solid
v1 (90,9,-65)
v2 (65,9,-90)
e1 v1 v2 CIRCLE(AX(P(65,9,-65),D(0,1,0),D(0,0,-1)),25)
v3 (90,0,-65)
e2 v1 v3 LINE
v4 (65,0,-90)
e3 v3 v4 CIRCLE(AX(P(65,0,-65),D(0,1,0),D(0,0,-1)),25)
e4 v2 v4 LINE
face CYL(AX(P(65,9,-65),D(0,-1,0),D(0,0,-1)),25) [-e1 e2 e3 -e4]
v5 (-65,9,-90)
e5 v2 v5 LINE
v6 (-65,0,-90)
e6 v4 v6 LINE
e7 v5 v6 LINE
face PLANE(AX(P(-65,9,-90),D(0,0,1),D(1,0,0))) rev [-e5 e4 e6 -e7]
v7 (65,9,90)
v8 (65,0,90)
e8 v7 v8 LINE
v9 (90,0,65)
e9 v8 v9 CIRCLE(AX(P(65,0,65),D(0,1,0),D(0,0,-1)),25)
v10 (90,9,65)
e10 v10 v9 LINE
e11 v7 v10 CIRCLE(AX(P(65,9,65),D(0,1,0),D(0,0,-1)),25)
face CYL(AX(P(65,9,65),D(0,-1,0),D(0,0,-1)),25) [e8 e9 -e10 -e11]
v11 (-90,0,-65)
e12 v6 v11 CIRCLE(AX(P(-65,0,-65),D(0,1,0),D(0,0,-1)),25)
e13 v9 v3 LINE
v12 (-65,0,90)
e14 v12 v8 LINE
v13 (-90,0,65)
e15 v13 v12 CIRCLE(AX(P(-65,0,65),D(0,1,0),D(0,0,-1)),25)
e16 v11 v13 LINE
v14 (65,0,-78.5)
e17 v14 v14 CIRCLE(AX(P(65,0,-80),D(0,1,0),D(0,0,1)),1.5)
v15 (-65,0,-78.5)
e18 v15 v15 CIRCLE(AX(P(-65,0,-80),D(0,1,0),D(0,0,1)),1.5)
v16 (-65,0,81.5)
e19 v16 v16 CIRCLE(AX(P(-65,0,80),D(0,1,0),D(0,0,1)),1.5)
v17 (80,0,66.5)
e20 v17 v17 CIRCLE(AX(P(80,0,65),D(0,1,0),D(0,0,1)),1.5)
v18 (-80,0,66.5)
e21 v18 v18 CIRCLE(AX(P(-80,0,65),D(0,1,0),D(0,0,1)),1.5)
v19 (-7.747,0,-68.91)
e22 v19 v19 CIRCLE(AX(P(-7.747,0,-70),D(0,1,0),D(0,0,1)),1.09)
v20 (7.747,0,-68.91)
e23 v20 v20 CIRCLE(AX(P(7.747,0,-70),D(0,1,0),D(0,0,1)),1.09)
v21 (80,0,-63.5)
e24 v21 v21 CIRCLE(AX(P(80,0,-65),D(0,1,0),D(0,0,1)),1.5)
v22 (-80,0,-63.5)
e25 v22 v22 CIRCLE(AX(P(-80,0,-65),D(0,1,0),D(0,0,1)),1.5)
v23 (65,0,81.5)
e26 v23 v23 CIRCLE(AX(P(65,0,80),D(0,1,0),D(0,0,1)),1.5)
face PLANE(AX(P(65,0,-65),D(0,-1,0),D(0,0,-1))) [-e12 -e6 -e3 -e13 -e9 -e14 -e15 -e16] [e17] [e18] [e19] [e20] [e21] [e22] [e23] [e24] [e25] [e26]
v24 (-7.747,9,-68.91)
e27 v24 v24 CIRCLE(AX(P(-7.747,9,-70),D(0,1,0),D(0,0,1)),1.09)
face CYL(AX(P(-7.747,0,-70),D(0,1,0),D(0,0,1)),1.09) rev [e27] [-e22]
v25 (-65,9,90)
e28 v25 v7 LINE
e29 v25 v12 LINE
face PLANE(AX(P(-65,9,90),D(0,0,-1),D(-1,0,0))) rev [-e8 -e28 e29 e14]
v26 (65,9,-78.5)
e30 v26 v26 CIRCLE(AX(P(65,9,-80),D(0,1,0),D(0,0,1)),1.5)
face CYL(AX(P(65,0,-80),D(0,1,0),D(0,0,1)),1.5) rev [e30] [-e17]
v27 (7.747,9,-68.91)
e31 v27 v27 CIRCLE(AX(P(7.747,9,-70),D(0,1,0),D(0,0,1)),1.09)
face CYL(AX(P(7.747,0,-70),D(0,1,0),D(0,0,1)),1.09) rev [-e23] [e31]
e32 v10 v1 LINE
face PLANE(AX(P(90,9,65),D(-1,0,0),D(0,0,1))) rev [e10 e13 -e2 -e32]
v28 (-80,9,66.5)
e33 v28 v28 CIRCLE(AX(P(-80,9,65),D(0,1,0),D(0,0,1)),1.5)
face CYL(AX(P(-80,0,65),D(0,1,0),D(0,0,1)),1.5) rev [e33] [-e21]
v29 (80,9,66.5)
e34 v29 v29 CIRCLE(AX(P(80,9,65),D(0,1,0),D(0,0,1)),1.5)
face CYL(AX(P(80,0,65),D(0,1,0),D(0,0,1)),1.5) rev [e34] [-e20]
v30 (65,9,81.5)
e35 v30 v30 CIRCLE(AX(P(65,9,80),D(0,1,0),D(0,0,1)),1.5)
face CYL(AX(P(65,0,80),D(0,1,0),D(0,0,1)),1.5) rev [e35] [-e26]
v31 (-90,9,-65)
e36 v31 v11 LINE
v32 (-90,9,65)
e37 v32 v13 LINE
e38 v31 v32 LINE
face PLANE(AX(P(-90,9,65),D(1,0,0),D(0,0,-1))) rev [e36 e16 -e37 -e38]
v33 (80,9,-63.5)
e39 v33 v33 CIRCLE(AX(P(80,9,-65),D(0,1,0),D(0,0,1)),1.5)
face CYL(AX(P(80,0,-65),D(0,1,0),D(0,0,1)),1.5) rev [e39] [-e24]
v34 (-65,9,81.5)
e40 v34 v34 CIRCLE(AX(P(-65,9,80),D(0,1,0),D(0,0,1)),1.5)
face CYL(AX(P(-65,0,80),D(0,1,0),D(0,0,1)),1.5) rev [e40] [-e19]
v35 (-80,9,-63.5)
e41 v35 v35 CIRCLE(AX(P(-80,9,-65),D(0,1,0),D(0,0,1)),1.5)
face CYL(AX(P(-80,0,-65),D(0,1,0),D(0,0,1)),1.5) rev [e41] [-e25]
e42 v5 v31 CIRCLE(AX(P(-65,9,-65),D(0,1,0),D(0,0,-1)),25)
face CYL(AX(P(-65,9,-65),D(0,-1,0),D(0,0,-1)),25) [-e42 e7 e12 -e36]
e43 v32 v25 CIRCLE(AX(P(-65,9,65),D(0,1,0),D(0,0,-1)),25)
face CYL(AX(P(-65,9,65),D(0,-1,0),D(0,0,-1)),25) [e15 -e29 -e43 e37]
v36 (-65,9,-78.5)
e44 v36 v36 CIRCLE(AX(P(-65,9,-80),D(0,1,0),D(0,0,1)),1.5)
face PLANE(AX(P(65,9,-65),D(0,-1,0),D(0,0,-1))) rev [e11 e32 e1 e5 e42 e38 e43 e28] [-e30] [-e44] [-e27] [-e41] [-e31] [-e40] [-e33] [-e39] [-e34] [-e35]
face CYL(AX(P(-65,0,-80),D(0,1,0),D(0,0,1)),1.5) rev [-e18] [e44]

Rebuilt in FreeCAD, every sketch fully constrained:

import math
import FreeCAD as App
import Part
import Sketcher

V = App.Vector
Q = App.Units.Quantity

doc = App.newDocument("Part")
body = doc.addObject("PartDesign::Body", "Body")

# Sketch on XZ plane
sketch1 = doc.addObject("Sketcher::SketchObject", "Sketch")
body.addObject(sketch1)
sketch1.AttachmentSupport = (doc.XZ_Plane, [""])
sketch1.MapMode = "FlatFace"
sketch1.addGeometry([
    Part.LineSegment(V(-65, 90, 0), V(65, 90, 0)),  # 0
    Part.ArcOfCircle(Part.Circle(V(65, 65, 0), V(0, 0, 1), 25), math.radians(0), math.radians(90)),  # 1
    Part.LineSegment(V(90, 65, 0), V(90, -65, 0)),  # 2
    Part.ArcOfCircle(Part.Circle(V(65, -65, 0), V(0, 0, 1), 25), math.radians(-90), math.radians(0)),  # 3
    Part.LineSegment(V(65, -90, 0), V(-65, -90, 0)),  # 4
    Part.ArcOfCircle(Part.Circle(V(-65, -65, 0), V(0, 0, 1), 25), math.radians(180), math.radians(270)),  # 5
    Part.LineSegment(V(-90, -65, 0), V(-90, 65, 0)),  # 6
    Part.ArcOfCircle(Part.Circle(V(-65, 65, 0), V(0, 0, 1), 25), math.radians(90), math.radians(180)),  # 7
], False)
sketch1.addConstraint([
    Sketcher.Constraint("Tangent", 0, 2, 1, 2),
    Sketcher.Constraint("Tangent", 1, 1, 2, 1),
    Sketcher.Constraint("Tangent", 2, 2, 3, 2),
    Sketcher.Constraint("Tangent", 3, 1, 4, 1),
    Sketcher.Constraint("Tangent", 4, 2, 5, 2),
    Sketcher.Constraint("Tangent", 5, 1, 6, 1),
    Sketcher.Constraint("Tangent", 6, 2, 7, 2),
    Sketcher.Constraint("Tangent", 7, 1, 0, 1),
    Sketcher.Constraint("Horizontal", 0),
    Sketcher.Constraint("Vertical", 2),
    Sketcher.Constraint("Horizontal", 4),
    Sketcher.Constraint("Vertical", 6),
    Sketcher.Constraint("Equal", 1, 3),
    Sketcher.Constraint("Equal", 3, 5),
    Sketcher.Constraint("Equal", 5, 7),
    Sketcher.Constraint("Symmetric", 1, 3, 5, 3, -1, 1),
    Sketcher.Constraint("Equal", 4, 2),
    Sketcher.Constraint("Radius", 1, Q("25 mm")),
    Sketcher.Constraint("DistanceX", 0, 1, 0, 2, Q("130 mm")),
])
pad1 = doc.addObject("PartDesign::Pad", "Pad")
body.addObject(pad1)
pad1.Profile = sketch1
pad1.Length = 9
pad1.Reversed = True

# Sketch on XZ plane
sketch2 = doc.addObject("Sketcher::SketchObject", "Sketch001")
body.addObject(sketch2)
sketch2.AttachmentSupport = (doc.XZ_Plane, [""])
sketch2.MapMode = "FlatFace"
sketch2.AttachmentOffset = App.Placement(V(0, 0, -9), App.Rotation())
sketch2.addGeometry([
    Part.Circle(V(-7.7, -70, 0), V(0, 0, 1), 1.1),
    Part.Circle(V(7.7, -70, 0), V(0, 0, 1), 1.1),
], False)
sketch2.addConstraint([
    Sketcher.Constraint("Equal", 0, 1),
    Sketcher.Constraint("Symmetric", 0, 3, 1, 3, -2),
    Sketcher.Constraint("Diameter", 0, Q("2.18 mm")),
    Sketcher.Constraint("DistanceY", 0, 3, -1, 1, Q("70 mm")),
    Sketcher.Constraint("DistanceX", 0, 3, -1, 1, Q("7.747 mm")),
])
pocket1 = doc.addObject("PartDesign::Pocket", "Pocket")
body.addObject(pocket1)
pocket1.Profile = sketch2
pocket1.Type = "ThroughAll"
pocket1.Reversed = True

# Sketch on XZ plane
sketch3 = doc.addObject("Sketcher::SketchObject", "Sketch002")
body.addObject(sketch3)
sketch3.AttachmentSupport = (doc.XZ_Plane, [""])
sketch3.MapMode = "FlatFace"
sketch3.AttachmentOffset = App.Placement(V(0, 0, -9), App.Rotation())
sketch3.addGeometry([
    Part.Circle(V(-65, -80, 0), V(0, 0, 1), 1.5),  # 0
    Part.Circle(V(-80, -65, 0), V(0, 0, 1), 1.5),  # 1
    Part.Circle(V(80, -65, 0), V(0, 0, 1), 1.5),  # 2
    Part.Circle(V(80, 65, 0), V(0, 0, 1), 1.5),  # 3
    Part.Circle(V(65, -80, 0), V(0, 0, 1), 1.5),  # 4
    Part.Circle(V(65, 80, 0), V(0, 0, 1), 1.5),  # 5
    Part.Circle(V(-65, 80, 0), V(0, 0, 1), 1.5),  # 6
    Part.Circle(V(-80, 65, 0), V(0, 0, 1), 1.5),  # 7
], False)
sketch3.addConstraint([
    Sketcher.Constraint("Equal", 0, 1),
    Sketcher.Constraint("Equal", 1, 2),
    Sketcher.Constraint("Equal", 2, 3),
    Sketcher.Constraint("Equal", 3, 4),
    Sketcher.Constraint("Equal", 4, 5),
    Sketcher.Constraint("Equal", 5, 6),
    Sketcher.Constraint("Equal", 6, 7),
    Sketcher.Constraint("Symmetric", 1, 3, 3, 3, -1, 1),
    Sketcher.Constraint("Symmetric", 0, 3, 5, 3, -1, 1),
    Sketcher.Constraint("Symmetric", 4, 3, 6, 3, -1, 1),
    Sketcher.Constraint("Symmetric", 2, 3, 7, 3, -1, 1),
    Sketcher.Constraint("Symmetric", 1, 3, 2, 3, -2),
    Sketcher.Constraint("Symmetric", 0, 3, 4, 3, -2),
    Sketcher.Constraint("Diameter", 0, Q("3 mm")),
    Sketcher.Constraint("DistanceX", 0, 3, -1, 1, Q("65 mm")),
    Sketcher.Constraint("DistanceY", 0, 3, -1, 1, Q("80 mm")),
    Sketcher.Constraint("DistanceX", 1, 3, -1, 1, Q("80 mm")),
    Sketcher.Constraint("DistanceY", 1, 3, -1, 1, Q("65 mm")),
])
pocket2 = doc.addObject("PartDesign::Pocket", "Pocket001")
body.addObject(pocket2)
pocket2.Profile = sketch3
pocket2.Type = "ThroughAll"
pocket2.Reversed = True

doc.recompute()
